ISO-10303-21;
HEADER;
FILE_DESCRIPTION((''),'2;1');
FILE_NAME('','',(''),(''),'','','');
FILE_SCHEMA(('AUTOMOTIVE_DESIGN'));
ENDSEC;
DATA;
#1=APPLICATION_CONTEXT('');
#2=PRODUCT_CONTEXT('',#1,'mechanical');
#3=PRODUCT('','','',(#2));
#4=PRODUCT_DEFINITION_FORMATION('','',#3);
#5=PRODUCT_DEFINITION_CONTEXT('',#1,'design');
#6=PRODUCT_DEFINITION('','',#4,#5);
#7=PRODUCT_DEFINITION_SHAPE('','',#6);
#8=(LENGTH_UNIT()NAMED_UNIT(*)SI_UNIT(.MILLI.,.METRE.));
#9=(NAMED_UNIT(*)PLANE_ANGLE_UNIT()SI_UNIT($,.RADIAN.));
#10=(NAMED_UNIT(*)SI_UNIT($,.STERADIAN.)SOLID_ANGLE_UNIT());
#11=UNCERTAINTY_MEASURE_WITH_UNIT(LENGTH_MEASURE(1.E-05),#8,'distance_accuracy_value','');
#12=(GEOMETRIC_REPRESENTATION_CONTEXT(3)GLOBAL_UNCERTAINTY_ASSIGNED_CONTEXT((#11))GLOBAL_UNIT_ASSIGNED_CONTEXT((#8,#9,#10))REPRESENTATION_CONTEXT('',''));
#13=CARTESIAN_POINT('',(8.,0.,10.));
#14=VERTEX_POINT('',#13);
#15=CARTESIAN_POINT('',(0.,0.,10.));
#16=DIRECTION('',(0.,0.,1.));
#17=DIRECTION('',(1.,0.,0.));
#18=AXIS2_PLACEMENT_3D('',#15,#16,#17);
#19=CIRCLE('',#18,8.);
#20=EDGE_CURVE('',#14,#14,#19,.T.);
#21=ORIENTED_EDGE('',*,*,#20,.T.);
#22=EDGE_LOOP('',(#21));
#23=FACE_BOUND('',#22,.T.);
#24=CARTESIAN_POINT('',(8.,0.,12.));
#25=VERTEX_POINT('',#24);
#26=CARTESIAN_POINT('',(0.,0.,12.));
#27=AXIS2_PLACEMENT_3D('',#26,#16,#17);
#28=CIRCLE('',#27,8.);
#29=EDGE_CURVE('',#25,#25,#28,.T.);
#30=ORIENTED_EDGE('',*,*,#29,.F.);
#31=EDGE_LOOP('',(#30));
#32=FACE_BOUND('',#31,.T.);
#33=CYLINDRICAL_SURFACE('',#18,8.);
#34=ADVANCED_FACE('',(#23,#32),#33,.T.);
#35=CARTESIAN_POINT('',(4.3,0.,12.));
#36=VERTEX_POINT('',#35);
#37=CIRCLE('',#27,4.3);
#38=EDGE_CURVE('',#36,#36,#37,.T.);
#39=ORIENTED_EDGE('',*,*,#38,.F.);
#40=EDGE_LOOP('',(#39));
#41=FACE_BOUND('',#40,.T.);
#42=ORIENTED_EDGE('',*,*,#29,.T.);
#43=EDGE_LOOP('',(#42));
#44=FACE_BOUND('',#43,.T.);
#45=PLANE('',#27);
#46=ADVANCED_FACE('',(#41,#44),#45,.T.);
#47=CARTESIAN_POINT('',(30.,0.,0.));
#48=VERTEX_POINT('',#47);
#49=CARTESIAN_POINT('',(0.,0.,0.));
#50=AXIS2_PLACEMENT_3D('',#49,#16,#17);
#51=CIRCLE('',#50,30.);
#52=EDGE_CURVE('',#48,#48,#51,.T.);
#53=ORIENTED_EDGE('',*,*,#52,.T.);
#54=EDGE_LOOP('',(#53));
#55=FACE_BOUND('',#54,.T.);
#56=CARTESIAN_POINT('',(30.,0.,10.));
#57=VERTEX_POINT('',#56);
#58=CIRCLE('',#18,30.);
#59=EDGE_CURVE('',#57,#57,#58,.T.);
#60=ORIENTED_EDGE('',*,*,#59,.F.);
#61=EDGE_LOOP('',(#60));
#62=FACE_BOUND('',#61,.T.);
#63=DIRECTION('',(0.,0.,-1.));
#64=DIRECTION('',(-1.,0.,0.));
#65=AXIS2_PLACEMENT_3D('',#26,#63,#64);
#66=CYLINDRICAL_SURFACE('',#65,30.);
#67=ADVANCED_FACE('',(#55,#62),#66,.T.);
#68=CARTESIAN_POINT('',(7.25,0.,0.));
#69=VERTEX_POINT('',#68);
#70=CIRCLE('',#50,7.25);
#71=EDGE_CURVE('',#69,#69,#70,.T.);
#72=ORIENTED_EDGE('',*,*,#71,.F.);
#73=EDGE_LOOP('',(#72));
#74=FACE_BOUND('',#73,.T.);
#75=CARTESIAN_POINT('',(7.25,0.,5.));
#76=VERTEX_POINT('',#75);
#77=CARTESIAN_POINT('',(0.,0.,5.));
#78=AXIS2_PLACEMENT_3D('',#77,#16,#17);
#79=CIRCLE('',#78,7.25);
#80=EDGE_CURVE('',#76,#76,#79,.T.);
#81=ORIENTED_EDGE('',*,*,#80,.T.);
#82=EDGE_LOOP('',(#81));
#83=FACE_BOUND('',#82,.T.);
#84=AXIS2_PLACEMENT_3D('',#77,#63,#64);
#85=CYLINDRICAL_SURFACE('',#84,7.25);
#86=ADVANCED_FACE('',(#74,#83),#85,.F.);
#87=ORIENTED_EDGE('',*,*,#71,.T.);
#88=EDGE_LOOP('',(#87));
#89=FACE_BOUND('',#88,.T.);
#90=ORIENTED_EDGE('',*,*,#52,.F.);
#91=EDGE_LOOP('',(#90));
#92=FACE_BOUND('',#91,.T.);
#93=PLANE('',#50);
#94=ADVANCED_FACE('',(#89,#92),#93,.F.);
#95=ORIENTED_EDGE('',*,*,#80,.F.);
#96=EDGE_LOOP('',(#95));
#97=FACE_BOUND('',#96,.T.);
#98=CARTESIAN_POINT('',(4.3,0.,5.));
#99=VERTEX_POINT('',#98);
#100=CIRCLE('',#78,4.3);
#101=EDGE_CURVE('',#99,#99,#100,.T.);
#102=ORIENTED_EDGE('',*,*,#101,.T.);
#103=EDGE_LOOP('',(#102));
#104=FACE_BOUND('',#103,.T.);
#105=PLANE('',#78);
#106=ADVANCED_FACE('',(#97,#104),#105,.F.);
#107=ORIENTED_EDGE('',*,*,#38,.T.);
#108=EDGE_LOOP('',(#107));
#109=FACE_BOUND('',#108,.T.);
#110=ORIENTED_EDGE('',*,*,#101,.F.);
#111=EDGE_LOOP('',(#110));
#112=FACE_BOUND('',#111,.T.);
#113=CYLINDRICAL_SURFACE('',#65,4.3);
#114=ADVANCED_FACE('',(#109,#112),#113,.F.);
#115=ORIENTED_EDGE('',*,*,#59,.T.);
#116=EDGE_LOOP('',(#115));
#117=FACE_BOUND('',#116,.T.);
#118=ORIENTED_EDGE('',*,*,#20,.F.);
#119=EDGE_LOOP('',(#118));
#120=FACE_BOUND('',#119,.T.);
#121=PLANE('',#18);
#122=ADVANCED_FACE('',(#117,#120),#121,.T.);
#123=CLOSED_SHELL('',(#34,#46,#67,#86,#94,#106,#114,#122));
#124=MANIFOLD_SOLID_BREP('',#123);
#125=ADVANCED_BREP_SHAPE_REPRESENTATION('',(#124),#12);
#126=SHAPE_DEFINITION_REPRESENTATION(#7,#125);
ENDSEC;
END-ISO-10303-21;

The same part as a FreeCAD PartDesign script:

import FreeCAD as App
import Part
import Sketcher
from FreeCAD import Vector
Q = App.Units.Quantity

doc = App.newDocument("Part")
body = doc.addObject("PartDesign::Body", "Body")

# Sketch on XY plane
sketch1 = doc.addObject("Sketcher::SketchObject", "Sketch")
body.addObject(sketch1)
sketch1.AttachmentSupport = (doc.XY_Plane, [""])
sketch1.MapMode = "FlatFace"
sketch1.addGeometry(Part.Circle(Vector(0, 0, 0), Vector(0, 0, 1), 30), False)
sketch1.addGeometry(Part.Circle(Vector(0, 0, 0), Vector(0, 0, 1), 4.3), False)
sketch1.addConstraint(Sketcher.Constraint("Coincident", 0, 3, -1, 1))
sketch1.addConstraint(Sketcher.Constraint("Coincident", 1, 3, -1, 1))
sketch1.addConstraint(Sketcher.Constraint("Diameter", 0, Q("60 mm")))
sketch1.addConstraint(Sketcher.Constraint("Diameter", 1, Q("8.6 mm")))
pad1 = doc.addObject("PartDesign::Pad", "Pad")
body.addObject(pad1)
pad1.Profile = sketch1
pad1.Length = 12

# Sketch on XY plane
sketch2 = doc.addObject("Sketcher::SketchObject", "Sketch001")
body.addObject(sketch2)
sketch2.AttachmentSupport = (doc.XY_Plane, [""])
sketch2.MapMode = "FlatFace"
sketch2.addGeometry(Part.Circle(Vector(0, 0, 0), Vector(0, 0, 1), 7), False)
sketch2.addConstraint(Sketcher.Constraint("Coincident", 0, 3, -1, 1))
sketch2.addConstraint(Sketcher.Constraint("Diameter", 0, Q("14.5 mm")))
pocket1 = doc.addObject("PartDesign::Pocket", "Pocket")
body.addObject(pocket1)
pocket1.Profile = sketch2
pocket1.Length = 5
pocket1.Reversed = True

# Sketch on XY plane
sketch3 = doc.addObject("Sketcher::SketchObject", "Sketch002")
body.addObject(sketch3)
sketch3.AttachmentSupport = (doc.XY_Plane, [""])
sketch3.MapMode = "FlatFace"
sketch3.AttachmentOffset = App.Placement(Vector(0, 0, 12), App.Rotation())
sketch3.addGeometry(Part.Circle(Vector(0, 0, 0), Vector(0, 0, 1), 30), False)
sketch3.addGeometry(Part.Circle(Vector(0, 0, 0), Vector(0, 0, 1), 8), False)
sketch3.addConstraint(Sketcher.Constraint("Coincident", 0, 3, -1, 1))
sketch3.addConstraint(Sketcher.Constraint("Coincident", 1, 3, -1, 1))
sketch3.addConstraint(Sketcher.Constraint("Diameter", 0, Q("60 mm")))
sketch3.addConstraint(Sketcher.Constraint("Diameter", 1, Q("16 mm")))
pocket2 = doc.addObject("PartDesign::Pocket", "Pocket001")
body.addObject(pocket2)
pocket2.Profile = sketch3
pocket2.Length = 2

doc.recompute()
